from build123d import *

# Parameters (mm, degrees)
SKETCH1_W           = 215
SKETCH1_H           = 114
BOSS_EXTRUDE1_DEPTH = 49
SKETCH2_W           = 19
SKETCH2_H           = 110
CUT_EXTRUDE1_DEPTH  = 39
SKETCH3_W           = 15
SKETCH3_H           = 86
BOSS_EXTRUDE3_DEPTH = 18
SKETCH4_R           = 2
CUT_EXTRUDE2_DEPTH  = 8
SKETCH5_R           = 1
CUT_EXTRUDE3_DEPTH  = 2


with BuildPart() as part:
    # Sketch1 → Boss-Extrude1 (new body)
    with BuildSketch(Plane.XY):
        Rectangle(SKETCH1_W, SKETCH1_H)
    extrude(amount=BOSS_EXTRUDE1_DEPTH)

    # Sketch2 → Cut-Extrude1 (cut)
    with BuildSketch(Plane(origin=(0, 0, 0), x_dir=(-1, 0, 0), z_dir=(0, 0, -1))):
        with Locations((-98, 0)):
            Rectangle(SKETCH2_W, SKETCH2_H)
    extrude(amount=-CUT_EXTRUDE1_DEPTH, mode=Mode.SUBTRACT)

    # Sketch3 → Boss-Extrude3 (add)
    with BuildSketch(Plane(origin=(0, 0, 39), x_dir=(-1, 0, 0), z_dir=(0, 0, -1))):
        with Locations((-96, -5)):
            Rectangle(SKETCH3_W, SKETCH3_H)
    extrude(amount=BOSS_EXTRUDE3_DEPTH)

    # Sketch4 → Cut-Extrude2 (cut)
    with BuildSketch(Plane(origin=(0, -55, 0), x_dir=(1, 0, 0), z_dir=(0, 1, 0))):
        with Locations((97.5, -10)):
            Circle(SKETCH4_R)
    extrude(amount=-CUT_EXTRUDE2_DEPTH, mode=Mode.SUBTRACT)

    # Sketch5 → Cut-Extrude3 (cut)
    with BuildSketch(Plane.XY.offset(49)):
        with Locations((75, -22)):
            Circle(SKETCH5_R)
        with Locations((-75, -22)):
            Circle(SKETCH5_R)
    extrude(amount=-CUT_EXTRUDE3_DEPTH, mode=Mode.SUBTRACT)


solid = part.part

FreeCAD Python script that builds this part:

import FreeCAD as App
import Part
import Sketcher

V = App.Vector
Q = App.Units.Quantity


def add_polygon(sketch, points):
    """Adds a closed chain of lines whose ends are joined by coincident constraints."""
    first, n = sketch.GeometryCount, len(points)
    for a, b in zip(points, points[1:] + points[:1]):
        sketch.addGeometry(Part.LineSegment(App.Vector(*a, 0), App.Vector(*b, 0)), False)
    for i in range(n):
        sketch.addConstraint(Sketcher.Constraint("Coincident", first + i, 2, first + (i + 1) % n, 1))

doc = App.newDocument("Part")
body = doc.addObject("PartDesign::Body", "Body")

sketch1 = body.newObject("Sketcher::SketchObject", "Sketch")
sketch1.AttachmentSupport = (doc.getObject("XY_Plane"), [""])
sketch1.MapMode = "FlatFace"
add_polygon(sketch1, [(-107.5, 57), (-107.5, -57), (107.5, -57), (107.5, 57)])
sketch1.addConstraint(Sketcher.Constraint("Vertical", 0))
sketch1.addConstraint(Sketcher.Constraint("Horizontal", 1))
sketch1.addConstraint(Sketcher.Constraint("Vertical", 2))
sketch1.addConstraint(Sketcher.Constraint("Horizontal", 3))
sketch1.addConstraint(Sketcher.Constraint("Symmetric", 0, 2, 2, 2, -1, 1))
sketch1.addConstraint(Sketcher.Constraint("DistanceX", 1, 1, 1, 2, Q("215 mm")))
sketch1.addConstraint(Sketcher.Constraint("DistanceY", 0, 2, 0, 1, Q("114 mm")))
pad1 = body.newObject("PartDesign::Pad", "Pad")
pad1.Profile = sketch1
pad1.Length = 49

sketch2 = body.newObject("Sketcher::SketchObject", "Sketch001")
sketch2.AttachmentSupport = (doc.getObject("XY_Plane"), [""])
sketch2.MapMode = "FlatFace"
add_polygon(sketch2, [(107.5, 55), (107.5, -55), (88.5, -55), (88.5, 55)])
sketch2.addConstraint(Sketcher.Constraint("Vertical", 0))
sketch2.addConstraint(Sketcher.Constraint("Horizontal", 1))
sketch2.addConstraint(Sketcher.Constraint("Vertical", 2))
sketch2.addConstraint(Sketcher.Constraint("Horizontal", 3))
sketch2.addConstraint(Sketcher.Constraint("DistanceX", 1, 2, 1, 1, Q("19 mm")))
sketch2.addConstraint(Sketcher.Constraint("DistanceY", 0, 2, 0, 1, Q("110 mm")))
sketch2.addConstraint(Sketcher.Constraint("DistanceY", 0, 2, -1, 1, Q("55 mm")))
sketch2.addConstraint(Sketcher.Constraint("DistanceX", -1, 1, 0, 2, Q("107.5 mm")))
pocket1 = body.newObject("PartDesign::Pocket", "Pocket")
pocket1.Profile = sketch2
pocket1.Length = 39
pocket1.Reversed = True

sketch3 = body.newObject("Sketcher::SketchObject", "Sketch002")
sketch3.AttachmentSupport = (doc.getObject("XY_Plane"), [""])
sketch3.MapMode = "FlatFace"
sketch3.AttachmentOffset = App.Placement(V(0, 0, 39), App.Rotation())
add_polygon(sketch3, [(103.5, 38), (103.5, -48), (88.5, -48), (88.5, 38)])
sketch3.addConstraint(Sketcher.Constraint("Vertical", 0))
sketch3.addConstraint(Sketcher.Constraint("Horizontal", 1))
sketch3.addConstraint(Sketcher.Constraint("Vertical", 2))
sketch3.addConstraint(Sketcher.Constraint("Horizontal", 3))
sketch3.addConstraint(Sketcher.Constraint("DistanceX", 1, 2, 1, 1, Q("15 mm")))
sketch3.addConstraint(Sketcher.Constraint("DistanceY", 0, 2, 0, 1, Q("86 mm")))
sketch3.addConstraint(Sketcher.Constraint("DistanceY", 0, 2, -1, 1, Q("48 mm")))
sketch3.addConstraint(Sketcher.Constraint("DistanceX", -1, 1, 0, 2, Q("103.5 mm")))
pad2 = body.newObject("PartDesign::Pad", "Pad001")
pad2.Profile = sketch3
pad2.Length = 18
pad2.Reversed = True

sketch4 = body.newObject("Sketcher::SketchObject", "Sketch003")
sketch4.AttachmentSupport = (doc.getObject("XZ_Plane"), [""])
sketch4.MapMode = "FlatFace"
sketch4.AttachmentOffset = App.Placement(V(0, 0, 55), App.Rotation())
sketch4.addGeometry(Part.Circle(V(97.5, 10, 0), V(0, 0, 1), 2), False)
sketch4.addConstraint(Sketcher.Constraint("Diameter", 0, Q("4 mm")))
sketch4.addConstraint(Sketcher.Constraint("DistanceY", -1, 1, 0, 3, Q("10 mm")))
sketch4.addConstraint(Sketcher.Constraint("DistanceX", -1, 1, 0, 3, Q("97.5 mm")))
pocket2 = body.newObject("PartDesign::Pocket", "Pocket001")
pocket2.Profile = sketch4
pocket2.Length = 8
pocket2.Reversed = True

sketch5 = body.newObject("Sketcher::SketchObject", "Sketch004")
sketch5.AttachmentSupport = (doc.getObject("XY_Plane"), [""])
sketch5.MapMode = "FlatFace"
sketch5.AttachmentOffset = App.Placement(V(0, 0, 49), App.Rotation())
sketch5.addGeometry(Part.Circle(V(75, -22, 0), V(0, 0, 1), 1), False)
sketch5.addGeometry(Part.Circle(V(-75, -22, 0), V(0, 0, 1), 1), False)
sketch5.addConstraint(Sketcher.Constraint("Equal", 0, 1))
sketch5.addConstraint(Sketcher.Constraint("Symmetric", 0, 3, 1, 3, -2))
sketch5.addConstraint(Sketcher.Constraint("Diameter", 0, Q("2 mm")))
sketch5.addConstraint(Sketcher.Constraint("DistanceX", -1, 1, 0, 3, Q("75 mm")))
sketch5.addConstraint(Sketcher.Constraint("DistanceY", 0, 3, -1, 1, Q("22 mm")))
pocket3 = body.newObject("PartDesign::Pocket", "Pocket002")
pocket3.Profile = sketch5
pocket3.Length = 2

doc.recompute()
